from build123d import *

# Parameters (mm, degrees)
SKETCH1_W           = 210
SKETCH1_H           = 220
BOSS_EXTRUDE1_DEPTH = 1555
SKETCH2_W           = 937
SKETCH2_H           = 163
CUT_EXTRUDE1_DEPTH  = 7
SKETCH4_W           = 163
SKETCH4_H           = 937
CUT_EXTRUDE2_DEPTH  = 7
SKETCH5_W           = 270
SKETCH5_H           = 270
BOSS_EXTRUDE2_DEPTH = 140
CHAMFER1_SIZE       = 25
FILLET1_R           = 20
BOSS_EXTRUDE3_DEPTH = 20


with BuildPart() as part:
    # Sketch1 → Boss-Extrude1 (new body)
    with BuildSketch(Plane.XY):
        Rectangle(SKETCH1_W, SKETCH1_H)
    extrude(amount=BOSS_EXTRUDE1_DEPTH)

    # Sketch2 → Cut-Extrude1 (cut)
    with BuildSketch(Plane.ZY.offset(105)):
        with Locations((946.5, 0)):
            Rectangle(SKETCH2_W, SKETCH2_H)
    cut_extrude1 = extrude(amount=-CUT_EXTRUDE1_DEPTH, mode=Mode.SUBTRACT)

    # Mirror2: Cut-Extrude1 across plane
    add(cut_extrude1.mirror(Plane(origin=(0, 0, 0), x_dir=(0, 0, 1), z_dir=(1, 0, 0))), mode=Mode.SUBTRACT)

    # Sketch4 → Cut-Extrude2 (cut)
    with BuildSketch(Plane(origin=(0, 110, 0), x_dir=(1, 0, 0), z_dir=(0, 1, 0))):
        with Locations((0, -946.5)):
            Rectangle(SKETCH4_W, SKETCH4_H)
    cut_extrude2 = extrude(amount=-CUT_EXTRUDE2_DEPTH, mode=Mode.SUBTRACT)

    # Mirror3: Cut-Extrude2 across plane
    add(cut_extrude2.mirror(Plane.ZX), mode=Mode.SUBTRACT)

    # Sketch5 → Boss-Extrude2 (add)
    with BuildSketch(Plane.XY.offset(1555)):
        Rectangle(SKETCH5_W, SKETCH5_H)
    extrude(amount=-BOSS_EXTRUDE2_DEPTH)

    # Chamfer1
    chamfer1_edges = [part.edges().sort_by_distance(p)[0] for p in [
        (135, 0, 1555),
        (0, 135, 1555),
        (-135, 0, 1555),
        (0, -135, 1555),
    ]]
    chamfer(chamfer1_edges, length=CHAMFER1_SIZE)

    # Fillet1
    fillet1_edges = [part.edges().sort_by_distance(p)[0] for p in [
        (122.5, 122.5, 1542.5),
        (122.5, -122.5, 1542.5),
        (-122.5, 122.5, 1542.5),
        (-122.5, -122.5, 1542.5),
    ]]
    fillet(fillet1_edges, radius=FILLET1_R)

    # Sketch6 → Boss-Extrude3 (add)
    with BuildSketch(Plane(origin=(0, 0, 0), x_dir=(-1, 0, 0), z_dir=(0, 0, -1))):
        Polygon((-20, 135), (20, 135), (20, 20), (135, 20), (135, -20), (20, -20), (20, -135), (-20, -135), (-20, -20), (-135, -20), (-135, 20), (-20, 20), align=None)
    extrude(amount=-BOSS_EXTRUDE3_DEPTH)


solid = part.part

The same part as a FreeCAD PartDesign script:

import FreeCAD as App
import Part
import Sketcher


def edges_at(feature, points):
    """Names of the edges that pass closest to the given points."""
    edges = feature.Shape.Edges
    near = lambda p: min(range(len(edges)), key=lambda i: edges[i].distToShape(Part.Vertex(*p))[0])
    return sorted({f"Edge{near(p) + 1}" for p in points})


def add_polygon(sketch, points):
    """Adds a closed chain of lines whose ends are joined by coincident constraints."""
    first, n = sketch.GeometryCount, len(points)
    for a, b in zip(points, points[1:] + points[:1]):
        sketch.addGeometry(Part.LineSegment(App.Vector(*a, 0), App.Vector(*b, 0)), False)
    for i in range(n):
        sketch.addConstraint(Sketcher.Constraint("Coincident", first + i, 2, first + (i + 1) % n, 1))

doc = App.newDocument("Part")
body = doc.addObject("PartDesign::Body", "Body")

# Sketch on XY plane
sketch1 = body.newObject("Sketcher::SketchObject", "Sketch")
sketch1.AttachmentSupport = (doc.getObject("XY_Plane"), [""])
sketch1.MapMode = "FlatFace"
add_polygon(sketch1, [(-105, 110), (-105, -110), (105, -110), (105, 110)])  # lines 0-3
sketch1.addConstraint(Sketcher.Constraint("Vertical", 0))
sketch1.addConstraint(Sketcher.Constraint("Horizontal", 1))
sketch1.addConstraint(Sketcher.Constraint("Vertical", 2))
sketch1.addConstraint(Sketcher.Constraint("Horizontal", 3))
sketch1.addConstraint(Sketcher.Constraint("Symmetric", 0, 2, 2, 2, -1, 1))
sketch1.addConstraint(Sketcher.Constraint("DistanceX", 1, 1, 1, 2, 210.0))
sketch1.addConstraint(Sketcher.Constraint("DistanceY", 0, 2, 0, 1, 220.0))
pad1 = body.newObject("PartDesign::Pad", "Pad")
pad1.Profile = sketch1
pad1.Length = 1555

# Sketch on YZ plane
sketch2 = body.newObject("Sketcher::SketchObject", "Sketch001")
sketch2.AttachmentSupport = (doc.getObject("YZ_Plane"), [""])
sketch2.MapMode = "FlatFace"
sketch2.AttachmentOffset = App.Placement(App.Vector(0, 0, -105), App.Rotation())
add_polygon(sketch2, [(82, 478), (-82, 478), (-82, 1415), (82, 1415)])  # lines 0-3
sketch2.addConstraint(Sketcher.Constraint("Horizontal", 0))
sketch2.addConstraint(Sketcher.Constraint("Vertical", 1))
sketch2.addConstraint(Sketcher.Constraint("Horizontal", 2))
sketch2.addConstraint(Sketcher.Constraint("Vertical", 3))
sketch2.addConstraint(Sketcher.Constraint("DistanceX", 0, 2, 0, 1, 163.0))
sketch2.addConstraint(Sketcher.Constraint("DistanceY", 1, 1, 1, 2, 937.0))
sketch2.addConstraint(Sketcher.Constraint("DistanceY", -1, 1, 0, 2, 478.0))
sketch2.addConstraint(Sketcher.Constraint("DistanceX", 0, 2, -1, 1, 81.5))
pocket1 = body.newObject("PartDesign::Pocket", "Pocket")
pocket1.Profile = sketch2
pocket1.Length = 7
pocket1.Reversed = True
doc.recompute()

mirrored = body.newObject("PartDesign::Mirrored", "Mirrored")
mirrored.Originals = [pocket1]
mirrored.MirrorPlane = (doc.getObject("YZ_Plane"), [""])
body.Tip = mirrored

# Sketch on XZ plane
sketch3 = body.newObject("Sketcher::SketchObject", "Sketch002")
sketch3.AttachmentSupport = (doc.getObject("XZ_Plane"), [""])
sketch3.MapMode = "FlatFace"
sketch3.AttachmentOffset = App.Placement(App.Vector(0, 0, -110), App.Rotation())
add_polygon(sketch3, [(-82, 478), (-82, 1415), (82, 1415), (82, 478)])  # lines 0-3
sketch3.addConstraint(Sketcher.Constraint("Vertical", 0))
sketch3.addConstraint(Sketcher.Constraint("Horizontal", 1))
sketch3.addConstraint(Sketcher.Constraint("Vertical", 2))
sketch3.addConstraint(Sketcher.Constraint("Horizontal", 3))
sketch3.addConstraint(Sketcher.Constraint("DistanceX", 1, 1, 1, 2, 163.0))
sketch3.addConstraint(Sketcher.Constraint("DistanceY", 0, 1, 0, 2, 937.0))
sketch3.addConstraint(Sketcher.Constraint("DistanceY", -1, 1, 0, 2, 1415.0))
sketch3.addConstraint(Sketcher.Constraint("DistanceX", 0, 2, -1, 1, 81.5))
pocket2 = body.newObject("PartDesign::Pocket", "Pocket001")
pocket2.Profile = sketch3
pocket2.Length = 7
pocket2.Reversed = True
doc.recompute()

mirrored2 = body.newObject("PartDesign::Mirrored", "Mirrored001")
mirrored2.Originals = [pocket2]
mirrored2.MirrorPlane = (doc.getObject("XZ_Plane"), [""])
body.Tip = mirrored2

# Sketch on XY plane
sketch4 = body.newObject("Sketcher::SketchObject", "Sketch003")
sketch4.AttachmentSupport = (doc.getObject("XY_Plane"), [""])
sketch4.MapMode = "FlatFace"
sketch4.AttachmentOffset = App.Placement(App.Vector(0, 0, 1555), App.Rotation())
add_polygon(sketch4, [(-135, 135), (-135, -135), (135, -135), (135, 135)])  # lines 0-3
sketch4.addConstraint(Sketcher.Constraint("Vertical", 0))
sketch4.addConstraint(Sketcher.Constraint("Horizontal", 1))
sketch4.addConstraint(Sketcher.Constraint("Vertical", 2))
sketch4.addConstraint(Sketcher.Constraint("Horizontal", 3))
sketch4.addConstraint(Sketcher.Constraint("Symmetric", 0, 2, 2, 2, -1, 1))
sketch4.addConstraint(Sketcher.Constraint("Equal", 3, 0))
sketch4.addConstraint(Sketcher.Constraint("DistanceX", 1, 1, 1, 2, 270.0))
pad2 = body.newObject("PartDesign::Pad", "Pad001")
pad2.Profile = sketch4
pad2.Length = 140
pad2.Reversed = True
doc.recompute()

chamfer = body.newObject("PartDesign::Chamfer", "Chamfer")
chamfer.Base = (pad2, edges_at(pad2, [
    (135, 0, 1555),
    (0, 135, 1555),
    (-135, 0, 1555),
    (0, -135, 1555),
]))
chamfer.Size = 25
doc.recompute()

fillet = body.newObject("PartDesign::Fillet", "Fillet")
fillet.Base = (chamfer, edges_at(chamfer, [
    (122.5, 122.5, 1542.5),
    (122.5, -122.5, 1542.5),
    (-122.5, 122.5, 1542.5),
    (-122.5, -122.5, 1542.5),
]))
fillet.Radius = 20

# Sketch on XY plane
sketch5 = body.newObject("Sketcher::SketchObject", "Sketch004")
sketch5.AttachmentSupport = (doc.getObject("XY_Plane"), [""])
sketch5.MapMode = "FlatFace"
add_polygon(sketch5, [(-20, 135), (20, 135), (20, 20), (135, 20), (135, -20), (20, -20), (20, -135), (-20, -135), (-20, -20), (-135, -20), (-135, 20), (-20, 20)])  # lines 0-11
sketch5.addConstraint(Sketcher.Constraint("Horizontal", 0))
sketch5.addConstraint(Sketcher.Constraint("Vertical", 1))
sketch5.addConstraint(Sketcher.Constraint("Horizontal", 2))
sketch5.addConstraint(Sketcher.Constraint("Vertical", 3))
sketch5.addConstraint(Sketcher.Constraint("Horizontal", 4))
sketch5.addConstraint(Sketcher.Constraint("Vertical", 5))
sketch5.addConstraint(Sketcher.Constraint("Horizontal", 6))
sketch5.addConstraint(Sketcher.Constraint("Vertical", 7))
sketch5.addConstraint(Sketcher.Constraint("Horizontal", 8))
sketch5.addConstraint(Sketcher.Constraint("Vertical", 9))
sketch5.addConstraint(Sketcher.Constraint("Horizontal", 10))
sketch5.addConstraint(Sketcher.Constraint("Vertical", 11))
sketch5.addConstraint(Sketcher.Constraint("Symmetric", 0, 2, 6, 2, -1, 1))
sketch5.addConstraint(Sketcher.Constraint("Symmetric", 2, 2, 8, 2, -1, 1))
sketch5.addConstraint(Sketcher.Constraint("Symmetric", 4, 2, 10, 2, -1, 1))
sketch5.addConstraint(Sketcher.Constraint("Symmetric", 4, 2, 7, 2, -2))
sketch5.addConstraint(Sketcher.Constraint("Equal", 10, 1))
sketch5.addConstraint(Sketcher.Constraint("Equal", 6, 3))
sketch5.addConstraint(Sketcher.Constraint("DistanceX", 0, 1, 0, 2, 40.0))
sketch5.addConstraint(Sketcher.Constraint("DistanceX", 2, 1, 2, 2, 115.0))
pad3 = body.newObject("PartDesign::Pad", "Pad002")
pad3.Profile = sketch5
pad3.Length = 20

doc.recompute()
